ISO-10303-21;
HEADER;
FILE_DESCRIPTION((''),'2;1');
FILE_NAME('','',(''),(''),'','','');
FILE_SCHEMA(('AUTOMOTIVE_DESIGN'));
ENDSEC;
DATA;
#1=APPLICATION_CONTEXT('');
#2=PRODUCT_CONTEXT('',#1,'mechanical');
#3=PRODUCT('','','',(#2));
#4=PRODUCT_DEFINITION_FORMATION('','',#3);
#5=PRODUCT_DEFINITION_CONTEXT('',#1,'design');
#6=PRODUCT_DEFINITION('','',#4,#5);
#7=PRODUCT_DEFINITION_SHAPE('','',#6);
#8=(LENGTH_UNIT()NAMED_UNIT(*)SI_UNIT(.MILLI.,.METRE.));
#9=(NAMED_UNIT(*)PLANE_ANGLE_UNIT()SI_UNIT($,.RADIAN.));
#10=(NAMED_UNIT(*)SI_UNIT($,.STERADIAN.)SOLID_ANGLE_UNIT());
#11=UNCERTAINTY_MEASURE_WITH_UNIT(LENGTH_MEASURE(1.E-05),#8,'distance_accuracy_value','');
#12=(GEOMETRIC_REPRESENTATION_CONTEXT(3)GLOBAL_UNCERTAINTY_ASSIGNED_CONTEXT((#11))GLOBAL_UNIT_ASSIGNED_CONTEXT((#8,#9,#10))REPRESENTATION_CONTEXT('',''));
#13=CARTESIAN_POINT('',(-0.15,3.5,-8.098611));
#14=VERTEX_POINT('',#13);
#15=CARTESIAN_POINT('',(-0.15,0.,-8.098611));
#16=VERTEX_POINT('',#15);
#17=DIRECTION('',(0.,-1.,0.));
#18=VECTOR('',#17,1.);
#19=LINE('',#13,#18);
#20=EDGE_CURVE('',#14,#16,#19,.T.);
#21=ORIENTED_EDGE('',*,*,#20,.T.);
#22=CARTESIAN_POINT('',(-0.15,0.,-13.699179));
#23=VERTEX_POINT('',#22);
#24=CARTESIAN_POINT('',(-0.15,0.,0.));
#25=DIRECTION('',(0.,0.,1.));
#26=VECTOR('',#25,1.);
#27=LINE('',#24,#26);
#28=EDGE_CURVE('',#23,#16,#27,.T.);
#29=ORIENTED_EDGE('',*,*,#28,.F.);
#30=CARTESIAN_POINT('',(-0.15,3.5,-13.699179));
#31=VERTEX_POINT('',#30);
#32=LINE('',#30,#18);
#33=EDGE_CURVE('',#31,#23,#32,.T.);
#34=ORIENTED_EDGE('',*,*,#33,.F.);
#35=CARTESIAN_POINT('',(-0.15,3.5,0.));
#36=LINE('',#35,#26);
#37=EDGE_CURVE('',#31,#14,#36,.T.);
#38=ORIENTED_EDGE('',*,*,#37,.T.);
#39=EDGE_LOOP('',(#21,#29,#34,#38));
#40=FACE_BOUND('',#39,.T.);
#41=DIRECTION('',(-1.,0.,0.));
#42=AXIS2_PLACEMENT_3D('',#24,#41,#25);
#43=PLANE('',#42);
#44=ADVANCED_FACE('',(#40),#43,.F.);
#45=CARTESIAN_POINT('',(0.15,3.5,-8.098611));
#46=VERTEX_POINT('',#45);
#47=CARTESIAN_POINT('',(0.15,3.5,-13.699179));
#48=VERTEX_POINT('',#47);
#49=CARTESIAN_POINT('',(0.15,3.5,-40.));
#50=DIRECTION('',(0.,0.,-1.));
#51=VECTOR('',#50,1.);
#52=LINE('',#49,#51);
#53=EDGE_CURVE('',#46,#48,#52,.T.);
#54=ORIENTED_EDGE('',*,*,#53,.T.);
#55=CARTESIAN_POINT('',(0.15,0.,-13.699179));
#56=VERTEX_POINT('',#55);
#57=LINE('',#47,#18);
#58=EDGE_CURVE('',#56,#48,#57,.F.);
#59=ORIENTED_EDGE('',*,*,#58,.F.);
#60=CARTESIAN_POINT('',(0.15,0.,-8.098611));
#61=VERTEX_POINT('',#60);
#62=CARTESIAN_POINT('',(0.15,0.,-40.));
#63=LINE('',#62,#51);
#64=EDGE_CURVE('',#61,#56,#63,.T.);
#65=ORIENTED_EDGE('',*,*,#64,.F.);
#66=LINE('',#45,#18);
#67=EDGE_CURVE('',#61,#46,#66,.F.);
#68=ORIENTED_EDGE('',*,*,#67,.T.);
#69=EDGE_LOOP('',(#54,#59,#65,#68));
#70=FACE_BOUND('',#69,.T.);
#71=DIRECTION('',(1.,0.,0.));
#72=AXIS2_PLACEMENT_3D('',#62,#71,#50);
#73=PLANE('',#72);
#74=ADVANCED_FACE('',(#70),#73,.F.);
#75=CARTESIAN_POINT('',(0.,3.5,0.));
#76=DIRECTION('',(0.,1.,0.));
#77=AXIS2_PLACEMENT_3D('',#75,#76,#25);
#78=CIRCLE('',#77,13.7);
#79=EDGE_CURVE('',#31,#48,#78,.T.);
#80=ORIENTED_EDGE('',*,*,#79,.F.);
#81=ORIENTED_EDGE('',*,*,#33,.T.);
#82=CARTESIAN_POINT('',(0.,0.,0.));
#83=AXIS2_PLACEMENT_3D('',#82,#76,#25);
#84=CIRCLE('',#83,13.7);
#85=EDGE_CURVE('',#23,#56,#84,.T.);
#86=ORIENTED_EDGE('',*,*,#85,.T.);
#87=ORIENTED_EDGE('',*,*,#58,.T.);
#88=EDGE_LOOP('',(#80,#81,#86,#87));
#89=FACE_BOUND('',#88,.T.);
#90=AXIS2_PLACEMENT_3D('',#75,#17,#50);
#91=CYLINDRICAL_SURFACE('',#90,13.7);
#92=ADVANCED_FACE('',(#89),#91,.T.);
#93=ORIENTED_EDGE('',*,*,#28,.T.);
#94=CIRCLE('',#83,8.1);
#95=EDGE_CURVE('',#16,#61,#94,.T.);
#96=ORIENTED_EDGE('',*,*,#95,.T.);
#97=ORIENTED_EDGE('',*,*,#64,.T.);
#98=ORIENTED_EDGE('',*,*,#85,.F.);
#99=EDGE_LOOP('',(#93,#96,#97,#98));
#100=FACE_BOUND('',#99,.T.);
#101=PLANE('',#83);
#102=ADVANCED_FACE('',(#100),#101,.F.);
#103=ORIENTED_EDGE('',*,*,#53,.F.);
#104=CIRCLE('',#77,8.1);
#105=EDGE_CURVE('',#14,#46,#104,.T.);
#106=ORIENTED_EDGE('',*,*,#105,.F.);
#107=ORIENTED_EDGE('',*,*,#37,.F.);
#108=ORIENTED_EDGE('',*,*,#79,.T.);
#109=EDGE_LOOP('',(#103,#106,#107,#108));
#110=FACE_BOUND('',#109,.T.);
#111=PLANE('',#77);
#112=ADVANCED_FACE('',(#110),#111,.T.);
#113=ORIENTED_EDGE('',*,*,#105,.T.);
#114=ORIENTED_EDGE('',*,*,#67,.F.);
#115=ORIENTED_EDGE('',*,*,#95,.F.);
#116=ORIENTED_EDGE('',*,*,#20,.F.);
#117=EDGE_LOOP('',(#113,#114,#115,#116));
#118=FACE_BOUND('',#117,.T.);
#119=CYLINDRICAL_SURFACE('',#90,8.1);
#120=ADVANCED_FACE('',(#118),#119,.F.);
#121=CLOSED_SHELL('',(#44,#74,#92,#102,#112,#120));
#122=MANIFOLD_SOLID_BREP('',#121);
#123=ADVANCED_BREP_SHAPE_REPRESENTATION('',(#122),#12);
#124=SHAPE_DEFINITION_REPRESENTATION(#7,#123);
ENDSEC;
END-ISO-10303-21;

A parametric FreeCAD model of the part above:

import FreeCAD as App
import Part
import Sketcher

V = App.Vector
Q = App.Units.Quantity


def add_polygon(sketch, points):
    """Adds a closed chain of lines whose ends are joined by coincident constraints."""
    first, n = sketch.GeometryCount, len(points)
    for a, b in zip(points, points[1:] + points[:1]):
        sketch.addGeometry(Part.LineSegment(App.Vector(*a, 0), App.Vector(*b, 0)), False)
    for i in range(n):
        sketch.addConstraint(Sketcher.Constraint("Coincident", first + i, 2, first + (i + 1) % n, 1))

doc = App.newDocument("Part")
body = doc.addObject("PartDesign::Body", "Body")

# Sketch on XZ plane
sketch1 = doc.addObject("Sketcher::SketchObject", "Sketch")
body.addObject(sketch1)
sketch1.AttachmentSupport = (doc.XZ_Plane, [""])
sketch1.MapMode = "FlatFace"
sketch1.addGeometry([
    Part.Circle(V(0, 0, 0), V(0, 0, 1), 14),
    Part.Circle(V(0, 0, 0), V(0, 0, 1), 8),
], False)
sketch1.addConstraint([
    Sketcher.Constraint("Coincident", 0, 3, -1, 1),
    Sketcher.Constraint("Coincident", 1, 3, -1, 1),
    Sketcher.Constraint("Diameter", 0, Q("27.4 mm")),
    Sketcher.Constraint("Diameter", 1, Q("16.2 mm")),
])
pad1 = doc.addObject("PartDesign::Pad", "Pad")
body.addObject(pad1)
pad1.Profile = sketch1
pad1.Length = 3.5
pad1.Reversed = True

# Sketch on XZ plane
sketch2 = doc.addObject("Sketcher::SketchObject", "Sketch001")
body.addObject(sketch2)
sketch2.AttachmentSupport = (doc.XZ_Plane, [""])
sketch2.MapMode = "FlatFace"
sketch2.AttachmentOffset = App.Placement(V(0, 0, -3.5), App.Rotation())
add_polygon(sketch2, [(-0.15, -40), (-0.15, 0), (0.15, 0), (0.15, -40)])  # lines 0-3
sketch2.addConstraint([
    Sketcher.Constraint("Vertical", 0),
    Sketcher.Constraint("Horizontal", 1),
    Sketcher.Constraint("Vertical", 2),
    Sketcher.Constraint("Horizontal", 3),
    Sketcher.Constraint("Symmetric", 0, 2, 1, 2, -1, 1),
    Sketcher.Constraint("DistanceY", 0, 1, 0, 2, Q("40 mm")),
    Sketcher.Constraint("DistanceX", 1, 1, 1, 2, Q("0.3 mm")),
])
pocket1 = doc.addObject("PartDesign::Pocket", "Pocket")
body.addObject(pocket1)
pocket1.Profile = sketch2
pocket1.Type = "ThroughAll"
pocket1.Reversed = True

doc.recompute()
